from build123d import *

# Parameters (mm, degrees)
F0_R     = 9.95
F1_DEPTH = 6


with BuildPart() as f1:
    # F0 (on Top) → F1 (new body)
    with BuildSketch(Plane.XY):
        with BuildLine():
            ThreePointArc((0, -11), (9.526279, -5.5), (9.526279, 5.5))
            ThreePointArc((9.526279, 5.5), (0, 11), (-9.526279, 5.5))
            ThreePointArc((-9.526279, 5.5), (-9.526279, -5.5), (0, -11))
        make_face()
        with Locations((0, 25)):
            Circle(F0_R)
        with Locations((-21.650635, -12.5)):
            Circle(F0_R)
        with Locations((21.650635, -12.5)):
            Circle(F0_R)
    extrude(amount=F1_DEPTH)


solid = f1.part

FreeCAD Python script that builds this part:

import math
import FreeCAD as App
import Part
import Sketcher
Q = App.Units.Quantity

doc = App.newDocument("Part")
body = doc.addObject("PartDesign::Body", "Body")
body.AllowCompound = True

sketch1 = doc.addObject("Sketcher::SketchObject", "Sketch")
body.addObject(sketch1)
sketch1.AttachmentSupport = (doc.XY_Plane, [""])
sketch1.MapMode = "FlatFace"
sketch1.addGeometry(Part.ArcOfCircle(Part.Circle(App.Vector(0, 0, 0), App.Vector(0, 0, 1), 11), math.radians(-90), math.radians(30)), False)
sketch1.addGeometry(Part.ArcOfCircle(Part.Circle(App.Vector(0, 0, 0), App.Vector(0, 0, 1), 11), math.radians(30), math.radians(150)), False)
sketch1.addGeometry(Part.ArcOfCircle(Part.Circle(App.Vector(0, 0, 0), App.Vector(0, 0, 1), 11), math.radians(150), math.radians(270)), False)
sketch1.addGeometry(Part.Circle(App.Vector(0, 25, 0), App.Vector(0, 0, 1), 10), False)
sketch1.addGeometry(Part.Circle(App.Vector(-22, -12, 0), App.Vector(0, 0, 1), 10), False)
sketch1.addGeometry(Part.Circle(App.Vector(22, -12, 0), App.Vector(0, 0, 1), 10), False)
sketch1.addConstraint(Sketcher.Constraint("Tangent", 0, 2, 1, 1))
sketch1.addConstraint(Sketcher.Constraint("Tangent", 1, 2, 2, 1))
sketch1.addConstraint(Sketcher.Constraint("Tangent", 2, 2, 0, 1))
sketch1.addConstraint(Sketcher.Constraint("Coincident", 0, 3, -1, 1))
sketch1.addConstraint(Sketcher.Constraint("Equal", 3, 4))
sketch1.addConstraint(Sketcher.Constraint("Equal", 4, 5))
sketch1.addConstraint(Sketcher.Constraint("Symmetric", 4, 3, 5, 3, -2))
sketch1.addConstraint(Sketcher.Constraint("PointOnObject", 3, 3, -2))
sketch1.addConstraint(Sketcher.Constraint("PointOnObject", 2, 2, -2))
sketch1.addConstraint(Sketcher.Constraint("Horizontal", 0, 2, 1, 2))
sketch1.addConstraint(Sketcher.Constraint("Radius", 0, Q("11 mm")))
sketch1.addConstraint(Sketcher.Constraint("Diameter", 3, Q("19.9 mm")))
sketch1.addConstraint(Sketcher.Constraint("DistanceY", -1, 1, 3, 3, Q("25 mm")))
sketch1.addConstraint(Sketcher.Constraint("DistanceY", 5, 3, 0, 2, Q("18 mm")))
sketch1.addConstraint(Sketcher.Constraint("DistanceY", 4, 3, -1, 1, Q("12.5 mm")))
sketch1.addConstraint(Sketcher.Constraint("DistanceX", 4, 3, 5, 3, Q("43.30127 mm")))
pad1 = doc.addObject("PartDesign::Pad", "Pad")
body.addObject(pad1)
pad1.Profile = sketch1
pad1.Length = 6

doc.recompute()
